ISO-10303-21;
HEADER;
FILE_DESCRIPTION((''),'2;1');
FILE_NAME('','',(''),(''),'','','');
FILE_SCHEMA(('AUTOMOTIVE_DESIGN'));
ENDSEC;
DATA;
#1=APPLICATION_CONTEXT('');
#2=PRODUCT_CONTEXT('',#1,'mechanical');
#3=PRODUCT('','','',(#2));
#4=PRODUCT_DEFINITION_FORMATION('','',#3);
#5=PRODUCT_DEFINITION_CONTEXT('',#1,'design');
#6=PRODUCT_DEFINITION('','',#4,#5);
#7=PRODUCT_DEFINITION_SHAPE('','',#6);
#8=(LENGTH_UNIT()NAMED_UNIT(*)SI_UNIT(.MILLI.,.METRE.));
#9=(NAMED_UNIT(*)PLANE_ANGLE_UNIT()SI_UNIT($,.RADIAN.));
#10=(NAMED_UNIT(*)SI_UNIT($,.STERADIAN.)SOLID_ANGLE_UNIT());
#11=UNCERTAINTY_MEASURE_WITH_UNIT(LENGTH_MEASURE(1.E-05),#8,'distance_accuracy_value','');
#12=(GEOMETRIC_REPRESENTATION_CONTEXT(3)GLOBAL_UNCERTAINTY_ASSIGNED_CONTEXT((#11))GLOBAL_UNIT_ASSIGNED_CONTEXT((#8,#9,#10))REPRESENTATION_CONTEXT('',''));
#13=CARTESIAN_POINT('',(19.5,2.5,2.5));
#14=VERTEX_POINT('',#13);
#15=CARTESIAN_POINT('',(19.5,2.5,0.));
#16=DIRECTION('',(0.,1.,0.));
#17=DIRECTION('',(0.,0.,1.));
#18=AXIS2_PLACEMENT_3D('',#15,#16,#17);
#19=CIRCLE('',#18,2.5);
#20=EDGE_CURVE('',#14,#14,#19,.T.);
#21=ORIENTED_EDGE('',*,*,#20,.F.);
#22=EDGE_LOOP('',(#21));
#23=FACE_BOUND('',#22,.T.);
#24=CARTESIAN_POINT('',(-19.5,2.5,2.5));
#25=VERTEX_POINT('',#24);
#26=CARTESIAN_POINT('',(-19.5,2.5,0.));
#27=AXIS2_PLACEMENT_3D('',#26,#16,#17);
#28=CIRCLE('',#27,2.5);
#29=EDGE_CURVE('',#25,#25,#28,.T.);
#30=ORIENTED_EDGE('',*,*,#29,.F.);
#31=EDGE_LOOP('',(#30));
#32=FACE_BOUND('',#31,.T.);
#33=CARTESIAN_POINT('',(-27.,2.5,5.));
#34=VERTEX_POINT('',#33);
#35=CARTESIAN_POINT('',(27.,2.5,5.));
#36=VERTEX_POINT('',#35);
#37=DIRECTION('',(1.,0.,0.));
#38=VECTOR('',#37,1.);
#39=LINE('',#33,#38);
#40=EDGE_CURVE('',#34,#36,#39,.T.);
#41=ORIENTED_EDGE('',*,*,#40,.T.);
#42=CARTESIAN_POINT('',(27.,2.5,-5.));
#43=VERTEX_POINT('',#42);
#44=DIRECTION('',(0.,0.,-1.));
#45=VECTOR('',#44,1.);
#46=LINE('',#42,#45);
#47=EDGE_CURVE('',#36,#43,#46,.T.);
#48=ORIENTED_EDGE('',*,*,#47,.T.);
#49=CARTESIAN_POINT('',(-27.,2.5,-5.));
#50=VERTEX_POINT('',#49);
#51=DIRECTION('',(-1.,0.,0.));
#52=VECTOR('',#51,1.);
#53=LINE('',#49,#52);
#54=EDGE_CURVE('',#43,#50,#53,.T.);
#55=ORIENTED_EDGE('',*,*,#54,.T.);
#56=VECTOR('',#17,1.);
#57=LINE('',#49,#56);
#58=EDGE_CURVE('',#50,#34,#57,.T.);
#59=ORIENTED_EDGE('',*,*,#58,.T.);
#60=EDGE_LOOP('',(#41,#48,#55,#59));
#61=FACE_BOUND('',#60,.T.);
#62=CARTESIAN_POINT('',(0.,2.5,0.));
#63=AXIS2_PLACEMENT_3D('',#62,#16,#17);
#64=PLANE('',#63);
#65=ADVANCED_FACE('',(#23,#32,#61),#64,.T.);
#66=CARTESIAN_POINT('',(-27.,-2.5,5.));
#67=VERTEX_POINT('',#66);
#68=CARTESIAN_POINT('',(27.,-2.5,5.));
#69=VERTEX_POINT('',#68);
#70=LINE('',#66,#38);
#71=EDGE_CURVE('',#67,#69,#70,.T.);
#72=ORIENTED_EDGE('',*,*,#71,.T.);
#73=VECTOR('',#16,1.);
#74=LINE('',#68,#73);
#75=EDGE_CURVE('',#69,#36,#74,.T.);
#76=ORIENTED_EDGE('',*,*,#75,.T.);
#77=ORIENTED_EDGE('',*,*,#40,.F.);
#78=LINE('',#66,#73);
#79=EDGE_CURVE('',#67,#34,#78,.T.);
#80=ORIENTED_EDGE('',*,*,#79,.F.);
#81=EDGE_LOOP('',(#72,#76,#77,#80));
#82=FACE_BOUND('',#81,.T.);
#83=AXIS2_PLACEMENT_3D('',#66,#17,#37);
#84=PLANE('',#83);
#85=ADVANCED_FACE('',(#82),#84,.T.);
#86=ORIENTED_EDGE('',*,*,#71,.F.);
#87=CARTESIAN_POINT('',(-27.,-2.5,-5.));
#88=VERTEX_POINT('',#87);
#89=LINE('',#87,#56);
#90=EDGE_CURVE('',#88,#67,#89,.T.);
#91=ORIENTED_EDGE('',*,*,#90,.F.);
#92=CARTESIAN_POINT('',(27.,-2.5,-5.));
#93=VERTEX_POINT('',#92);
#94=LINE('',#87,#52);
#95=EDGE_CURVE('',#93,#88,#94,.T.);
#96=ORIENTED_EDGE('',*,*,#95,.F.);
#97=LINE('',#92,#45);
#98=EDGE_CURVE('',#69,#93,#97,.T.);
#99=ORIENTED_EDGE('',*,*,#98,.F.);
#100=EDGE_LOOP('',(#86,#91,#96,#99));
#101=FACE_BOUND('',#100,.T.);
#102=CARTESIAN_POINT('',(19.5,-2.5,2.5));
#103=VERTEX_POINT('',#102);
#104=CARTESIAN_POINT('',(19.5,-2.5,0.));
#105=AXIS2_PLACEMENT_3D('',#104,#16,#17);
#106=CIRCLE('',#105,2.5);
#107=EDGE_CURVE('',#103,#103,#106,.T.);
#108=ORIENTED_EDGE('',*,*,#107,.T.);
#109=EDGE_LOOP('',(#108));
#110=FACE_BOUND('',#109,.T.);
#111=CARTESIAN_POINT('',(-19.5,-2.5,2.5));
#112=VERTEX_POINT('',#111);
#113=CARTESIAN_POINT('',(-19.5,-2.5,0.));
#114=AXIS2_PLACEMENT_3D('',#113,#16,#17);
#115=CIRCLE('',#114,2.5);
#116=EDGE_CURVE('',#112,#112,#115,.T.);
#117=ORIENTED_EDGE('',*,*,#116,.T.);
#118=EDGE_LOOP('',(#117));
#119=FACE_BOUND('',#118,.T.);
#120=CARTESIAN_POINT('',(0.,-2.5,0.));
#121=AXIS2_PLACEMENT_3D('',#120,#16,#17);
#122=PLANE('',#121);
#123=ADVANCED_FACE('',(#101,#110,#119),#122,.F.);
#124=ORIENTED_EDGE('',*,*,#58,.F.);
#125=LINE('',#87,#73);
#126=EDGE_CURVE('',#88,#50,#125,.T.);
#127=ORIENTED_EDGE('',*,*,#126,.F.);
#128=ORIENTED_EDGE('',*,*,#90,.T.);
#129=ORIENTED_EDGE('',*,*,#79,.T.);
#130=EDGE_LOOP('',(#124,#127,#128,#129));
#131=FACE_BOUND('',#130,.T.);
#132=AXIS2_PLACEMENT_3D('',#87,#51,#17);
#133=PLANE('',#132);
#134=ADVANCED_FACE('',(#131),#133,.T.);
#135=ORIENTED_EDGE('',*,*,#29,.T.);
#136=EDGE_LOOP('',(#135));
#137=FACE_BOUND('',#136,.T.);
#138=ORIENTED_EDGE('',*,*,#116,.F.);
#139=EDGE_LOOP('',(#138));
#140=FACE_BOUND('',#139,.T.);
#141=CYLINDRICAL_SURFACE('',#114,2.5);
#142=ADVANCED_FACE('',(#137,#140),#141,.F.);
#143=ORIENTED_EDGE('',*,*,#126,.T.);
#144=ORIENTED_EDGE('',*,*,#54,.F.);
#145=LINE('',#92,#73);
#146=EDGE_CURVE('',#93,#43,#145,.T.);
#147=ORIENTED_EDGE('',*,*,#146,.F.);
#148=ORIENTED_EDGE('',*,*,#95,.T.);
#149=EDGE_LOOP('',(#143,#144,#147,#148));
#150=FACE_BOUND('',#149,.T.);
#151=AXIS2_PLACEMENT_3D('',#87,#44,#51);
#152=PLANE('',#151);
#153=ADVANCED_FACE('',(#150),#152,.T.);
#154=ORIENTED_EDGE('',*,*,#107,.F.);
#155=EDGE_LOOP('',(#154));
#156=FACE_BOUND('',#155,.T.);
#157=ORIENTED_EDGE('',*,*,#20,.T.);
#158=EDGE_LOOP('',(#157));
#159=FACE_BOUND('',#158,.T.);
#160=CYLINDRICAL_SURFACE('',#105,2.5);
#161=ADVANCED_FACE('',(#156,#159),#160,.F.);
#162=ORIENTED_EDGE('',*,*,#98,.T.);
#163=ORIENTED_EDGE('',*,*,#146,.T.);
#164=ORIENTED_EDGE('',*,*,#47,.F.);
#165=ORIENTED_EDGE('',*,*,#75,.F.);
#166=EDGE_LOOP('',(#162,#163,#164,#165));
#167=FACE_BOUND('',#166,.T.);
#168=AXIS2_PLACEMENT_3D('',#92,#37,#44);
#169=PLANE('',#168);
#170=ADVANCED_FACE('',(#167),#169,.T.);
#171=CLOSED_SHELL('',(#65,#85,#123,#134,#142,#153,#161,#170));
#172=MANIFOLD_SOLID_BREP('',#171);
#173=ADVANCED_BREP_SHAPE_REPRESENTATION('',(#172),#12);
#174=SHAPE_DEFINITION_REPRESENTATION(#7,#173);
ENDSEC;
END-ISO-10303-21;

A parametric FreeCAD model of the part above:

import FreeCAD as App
import Part
import Sketcher
from FreeCAD import Vector
Q = App.Units.Quantity


def add_polygon(sketch, points):
    """Adds a closed chain of lines whose ends are joined by coincident constraints."""
    first, n = sketch.GeometryCount, len(points)
    for a, b in zip(points, points[1:] + points[:1]):
        sketch.addGeometry(Part.LineSegment(App.Vector(*a, 0), App.Vector(*b, 0)), False)
    for i in range(n):
        sketch.addConstraint(Sketcher.Constraint("Coincident", first + i, 2, first + (i + 1) % n, 1))

doc = App.newDocument("Part")
body = doc.addObject("PartDesign::Body", "Body")

# Sketch on XZ plane
sketch1 = body.newObject("Sketcher::SketchObject", "Sketch")
sketch1.AttachmentSupport = (doc.getObject("XZ_Plane"), [""])
sketch1.MapMode = "FlatFace"
add_polygon(sketch1, [(-27, -5), (-27, 5), (27, 5), (27, -5)])  # lines 0-3
sketch1.addGeometry(Part.Circle(Vector(-19.5, 0, 0), Vector(0, 0, 1), 2.5), False)  # 4
sketch1.addGeometry(Part.Circle(Vector(19.5, 0, 0), Vector(0, 0, 1), 2.5), False)  # 5
sketch1.addConstraint(Sketcher.Constraint("Vertical", 0))
sketch1.addConstraint(Sketcher.Constraint("Horizontal", 1))
sketch1.addConstraint(Sketcher.Constraint("Vertical", 2))
sketch1.addConstraint(Sketcher.Constraint("Horizontal", 3))
sketch1.addConstraint(Sketcher.Constraint("Equal", 4, 5))
sketch1.addConstraint(Sketcher.Constraint("Symmetric", 4, 3, 5, 3, -1, 1))
sketch1.addConstraint(Sketcher.Constraint("Symmetric", 0, 2, 2, 2, -1, 1))
sketch1.addConstraint(Sketcher.Constraint("PointOnObject", 4, 3, -1))
sketch1.addConstraint(Sketcher.Constraint("Diameter", 4, Q("5 mm")))
sketch1.addConstraint(Sketcher.Constraint("DistanceX", 1, 1, 1, 2, Q("54 mm")))
sketch1.addConstraint(Sketcher.Constraint("DistanceY", 0, 1, 0, 2, Q("10 mm")))
sketch1.addConstraint(Sketcher.Constraint("DistanceX", 4, 3, 5, 3, Q("39 mm")))
pad1 = body.newObject("PartDesign::Pad", "Pad")
pad1.Profile = sketch1
pad1.Type = "TwoLengths"
pad1.Length = 2.5
pad1.Length2 = 2.5
pad1.Reversed = True

doc.recompute()
